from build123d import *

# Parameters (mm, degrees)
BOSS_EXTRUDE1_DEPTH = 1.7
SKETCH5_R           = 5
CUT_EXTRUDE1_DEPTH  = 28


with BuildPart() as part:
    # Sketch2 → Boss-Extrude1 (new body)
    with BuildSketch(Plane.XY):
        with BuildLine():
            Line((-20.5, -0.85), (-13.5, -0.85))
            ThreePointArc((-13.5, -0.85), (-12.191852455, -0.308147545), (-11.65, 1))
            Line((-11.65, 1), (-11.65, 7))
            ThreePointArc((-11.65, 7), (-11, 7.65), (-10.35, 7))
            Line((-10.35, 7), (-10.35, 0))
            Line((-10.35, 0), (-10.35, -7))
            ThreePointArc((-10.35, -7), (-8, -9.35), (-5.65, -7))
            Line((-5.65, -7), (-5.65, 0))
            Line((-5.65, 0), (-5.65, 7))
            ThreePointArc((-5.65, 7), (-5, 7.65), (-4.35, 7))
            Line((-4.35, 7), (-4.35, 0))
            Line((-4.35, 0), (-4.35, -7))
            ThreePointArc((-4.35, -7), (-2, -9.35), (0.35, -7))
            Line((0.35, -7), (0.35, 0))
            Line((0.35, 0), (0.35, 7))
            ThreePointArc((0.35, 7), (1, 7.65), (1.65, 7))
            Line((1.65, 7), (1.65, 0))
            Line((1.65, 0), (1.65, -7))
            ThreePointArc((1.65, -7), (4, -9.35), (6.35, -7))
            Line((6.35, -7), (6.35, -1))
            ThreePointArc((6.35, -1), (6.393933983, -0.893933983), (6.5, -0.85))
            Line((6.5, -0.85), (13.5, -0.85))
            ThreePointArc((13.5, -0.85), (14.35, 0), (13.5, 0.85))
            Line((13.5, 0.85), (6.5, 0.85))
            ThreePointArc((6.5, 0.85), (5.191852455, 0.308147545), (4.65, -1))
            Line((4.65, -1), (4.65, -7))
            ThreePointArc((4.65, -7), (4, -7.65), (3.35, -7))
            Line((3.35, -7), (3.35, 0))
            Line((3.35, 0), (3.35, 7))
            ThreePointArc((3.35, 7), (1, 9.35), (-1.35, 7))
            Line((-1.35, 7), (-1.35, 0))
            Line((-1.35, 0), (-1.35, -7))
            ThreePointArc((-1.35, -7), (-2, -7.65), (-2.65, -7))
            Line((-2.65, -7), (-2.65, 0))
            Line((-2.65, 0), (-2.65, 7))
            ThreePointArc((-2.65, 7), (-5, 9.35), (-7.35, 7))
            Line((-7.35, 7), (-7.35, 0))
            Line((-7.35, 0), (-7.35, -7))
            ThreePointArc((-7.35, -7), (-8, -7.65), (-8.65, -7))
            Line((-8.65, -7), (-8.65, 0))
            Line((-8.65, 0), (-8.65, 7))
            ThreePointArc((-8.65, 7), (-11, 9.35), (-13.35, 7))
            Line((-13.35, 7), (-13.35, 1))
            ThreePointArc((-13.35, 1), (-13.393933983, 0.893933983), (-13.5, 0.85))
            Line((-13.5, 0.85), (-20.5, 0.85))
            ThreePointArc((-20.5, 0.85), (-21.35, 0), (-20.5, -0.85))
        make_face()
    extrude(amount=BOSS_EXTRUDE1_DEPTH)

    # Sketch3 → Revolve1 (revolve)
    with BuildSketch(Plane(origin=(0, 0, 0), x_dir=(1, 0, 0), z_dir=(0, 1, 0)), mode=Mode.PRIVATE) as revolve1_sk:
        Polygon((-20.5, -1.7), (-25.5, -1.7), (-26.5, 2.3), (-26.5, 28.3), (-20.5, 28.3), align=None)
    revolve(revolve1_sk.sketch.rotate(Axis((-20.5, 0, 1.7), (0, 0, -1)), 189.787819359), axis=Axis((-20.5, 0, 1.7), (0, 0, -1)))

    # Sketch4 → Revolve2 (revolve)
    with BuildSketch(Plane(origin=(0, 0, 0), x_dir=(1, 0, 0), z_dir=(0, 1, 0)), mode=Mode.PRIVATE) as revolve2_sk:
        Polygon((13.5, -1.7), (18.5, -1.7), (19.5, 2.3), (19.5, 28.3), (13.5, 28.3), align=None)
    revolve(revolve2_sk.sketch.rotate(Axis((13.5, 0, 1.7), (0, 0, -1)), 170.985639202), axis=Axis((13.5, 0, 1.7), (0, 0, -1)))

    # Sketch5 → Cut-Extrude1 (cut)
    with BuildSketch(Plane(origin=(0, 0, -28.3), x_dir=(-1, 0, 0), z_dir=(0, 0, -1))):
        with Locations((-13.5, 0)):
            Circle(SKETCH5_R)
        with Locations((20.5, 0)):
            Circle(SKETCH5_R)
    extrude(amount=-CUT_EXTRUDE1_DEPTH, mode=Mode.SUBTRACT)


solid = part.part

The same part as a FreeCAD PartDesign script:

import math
import FreeCAD as App
import Part
import Sketcher
Q = App.Units.Quantity

doc = App.newDocument("Part")
body = doc.addObject("PartDesign::Body", "Body")

sketch1 = doc.addObject("Sketcher::SketchObject", "Sketch")
body.addObject(sketch1)
sketch1.AttachmentSupport = (doc.XY_Plane, [""])
sketch1.MapMode = "FlatFace"
sketch1.addGeometry([
    Part.LineSegment(App.Vector(-20.5, -0.85, 0), App.Vector(-13.5, -0.85, 0)),
    Part.ArcOfCircle(Part.Circle(App.Vector(-13.5, 1, 0), App.Vector(0, 0, 1), 1.85), math.radians(-90), math.radians(0)),
    Part.LineSegment(App.Vector(-11.65, 1, 0), App.Vector(-11.65, 7, 0)),
    Part.ArcOfCircle(Part.Circle(App.Vector(-11, 7, 0), App.Vector(0, 0, 1), 0.65), math.radians(0), math.radians(180)),
    Part.LineSegment(App.Vector(-10.35, 7, 0), App.Vector(-10.35, -7, 0)),
    Part.ArcOfCircle(Part.Circle(App.Vector(-8, -7, 0), App.Vector(0, 0, 1), 2.35), math.radians(180), math.radians(360)),
    Part.LineSegment(App.Vector(-5.65, -7, 0), App.Vector(-5.65, 7, 0)),
    Part.ArcOfCircle(Part.Circle(App.Vector(-5, 7, 0), App.Vector(0, 0, 1), 0.65), math.radians(0), math.radians(180)),
    Part.LineSegment(App.Vector(-4.35, 7, 0), App.Vector(-4.35, -7, 0)),
    Part.ArcOfCircle(Part.Circle(App.Vector(-2, -7, 0), App.Vector(0, 0, 1), 2.35), math.radians(180), math.radians(360)),
    Part.LineSegment(App.Vector(0.35, -7, 0), App.Vector(0.35, 7, 0)),
    Part.ArcOfCircle(Part.Circle(App.Vector(1, 7, 0), App.Vector(0, 0, 1), 0.65), math.radians(0), math.radians(180)),
    Part.LineSegment(App.Vector(1.65, 7, 0), App.Vector(1.65, -7, 0)),
    Part.ArcOfCircle(Part.Circle(App.Vector(4, -7, 0), App.Vector(0, 0, 1), 2.35), math.radians(180), math.radians(360)),
    Part.LineSegment(App.Vector(6.35, -7, 0), App.Vector(6.35, -1, 0)),
    Part.ArcOfCircle(Part.Circle(App.Vector(6.5, -1, 0), App.Vector(0, 0, 1), 0.15), math.radians(90), math.radians(180)),
    Part.LineSegment(App.Vector(6.5, -0.85, 0), App.Vector(13.5, -0.85, 0)),
    Part.ArcOfCircle(Part.Circle(App.Vector(13.5, 0, 0), App.Vector(0, 0, 1), 0.85), math.radians(-90), math.radians(90)),
    Part.LineSegment(App.Vector(13.5, 0.85, 0), App.Vector(6.5, 0.85, 0)),
    Part.ArcOfCircle(Part.Circle(App.Vector(6.5, -1, 0), App.Vector(0, 0, 1), 1.85), math.radians(90), math.radians(180)),
    Part.LineSegment(App.Vector(4.65, -1, 0), App.Vector(4.65, -7, 0)),
    Part.ArcOfCircle(Part.Circle(App.Vector(4, -7, 0), App.Vector(0, 0, 1), 0.65), math.radians(180), math.radians(360)),
    Part.LineSegment(App.Vector(3.35, -7, 0), App.Vector(3.35, 7, 0)),
    Part.ArcOfCircle(Part.Circle(App.Vector(1, 7, 0), App.Vector(0, 0, 1), 2.35), math.radians(0), math.radians(180)),
    Part.LineSegment(App.Vector(-1.35, 7, 0), App.Vector(-1.35, -7, 0)),
    Part.ArcOfCircle(Part.Circle(App.Vector(-2, -7, 0), App.Vector(0, 0, 1), 0.65), math.radians(180), math.radians(360)),
    Part.LineSegment(App.Vector(-2.65, -7, 0), App.Vector(-2.65, 7, 0)),
    Part.ArcOfCircle(Part.Circle(App.Vector(-5, 7, 0), App.Vector(0, 0, 1), 2.35), math.radians(0), math.radians(180)),
    Part.LineSegment(App.Vector(-7.35, 7, 0), App.Vector(-7.35, -7, 0)),
    Part.ArcOfCircle(Part.Circle(App.Vector(-8, -7, 0), App.Vector(0, 0, 1), 0.65), math.radians(180), math.radians(360)),
    Part.LineSegment(App.Vector(-8.65, -7, 0), App.Vector(-8.65, 7, 0)),
    Part.ArcOfCircle(Part.Circle(App.Vector(-11, 7, 0), App.Vector(0, 0, 1), 2.35), math.radians(0), math.radians(180)),
    Part.LineSegment(App.Vector(-13.35, 7, 0), App.Vector(-13.35, 1, 0)),
    Part.ArcOfCircle(Part.Circle(App.Vector(-13.5, 1, 0), App.Vector(0, 0, 1), 0.15), math.radians(-90), math.radians(0)),
    Part.LineSegment(App.Vector(-13.5, 0.85, 0), App.Vector(-20.5, 0.85, 0)),
    Part.ArcOfCircle(Part.Circle(App.Vector(-20.5, 0, 0), App.Vector(0, 0, 1), 0.85), math.radians(90), math.radians(270)),
], False)
sketch1.addConstraint([
    Sketcher.Constraint("Tangent", 0, 2, 1, 1),
    Sketcher.Constraint("Tangent", 1, 2, 2, 1),
    Sketcher.Constraint("Tangent", 2, 2, 3, 2),
    Sketcher.Constraint("Tangent", 3, 1, 4, 1),
    Sketcher.Constraint("Tangent", 4, 2, 5, 1),
    Sketcher.Constraint("Tangent", 5, 2, 6, 1),
    Sketcher.Constraint("Tangent", 6, 2, 7, 2),
    Sketcher.Constraint("Tangent", 7, 1, 8, 1),
    Sketcher.Constraint("Tangent", 8, 2, 9, 1),
    Sketcher.Constraint("Tangent", 9, 2, 10, 1),
    Sketcher.Constraint("Tangent", 10, 2, 11, 2),
    Sketcher.Constraint("Tangent", 11, 1, 12, 1),
    Sketcher.Constraint("Tangent", 12, 2, 13, 1),
    Sketcher.Constraint("Tangent", 13, 2, 14, 1),
    Sketcher.Constraint("Tangent", 14, 2, 15, 2),
    Sketcher.Constraint("Tangent", 15, 1, 16, 1),
    Sketcher.Constraint("Tangent", 16, 2, 17, 1),
    Sketcher.Constraint("Tangent", 17, 2, 18, 1),
    Sketcher.Constraint("Tangent", 18, 2, 19, 1),
    Sketcher.Constraint("Tangent", 19, 2, 20, 1),
    Sketcher.Constraint("Tangent", 20, 2, 21, 2),
    Sketcher.Constraint("Tangent", 21, 1, 22, 1),
    Sketcher.Constraint("Tangent", 22, 2, 23, 1),
    Sketcher.Constraint("Tangent", 23, 2, 24, 1),
    Sketcher.Constraint("Tangent", 24, 2, 25, 2),
    Sketcher.Constraint("Tangent", 25, 1, 26, 1),
    Sketcher.Constraint("Tangent", 26, 2, 27, 1),
    Sketcher.Constraint("Tangent", 27, 2, 28, 1),
    Sketcher.Constraint("Tangent", 28, 2, 29, 2),
    Sketcher.Constraint("Tangent", 29, 1, 30, 1),
    Sketcher.Constraint("Tangent", 30, 2, 31, 1),
    Sketcher.Constraint("Tangent", 31, 2, 32, 1),
    Sketcher.Constraint("Tangent", 32, 2, 33, 2),
    Sketcher.Constraint("Tangent", 33, 1, 34, 1),
    Sketcher.Constraint("Tangent", 34, 2, 35, 1),
    Sketcher.Constraint("Tangent", 35, 2, 0, 1),
    Sketcher.Constraint("Horizontal", 0),
    Sketcher.Constraint("Vertical", 2),
    Sketcher.Constraint("Vertical", 4),
    Sketcher.Constraint("Vertical", 6),
    Sketcher.Constraint("Vertical", 8),
    Sketcher.Constraint("Vertical", 10),
    Sketcher.Constraint("Vertical", 12),
    Sketcher.Constraint("Vertical", 14),
    Sketcher.Constraint("Horizontal", 16),
    Sketcher.Constraint("Horizontal", 18),
    Sketcher.Constraint("Vertical", 20),
    Sketcher.Constraint("Vertical", 22),
    Sketcher.Constraint("Vertical", 24),
    Sketcher.Constraint("Vertical", 26),
    Sketcher.Constraint("Vertical", 28),
    Sketcher.Constraint("Vertical", 30),
    Sketcher.Constraint("Vertical", 32),
    Sketcher.Constraint("Horizontal", 34),
    Sketcher.Constraint("Coincident", 19, 3, 15, 3),
    Sketcher.Constraint("Coincident", 21, 3, 13, 3),
    Sketcher.Constraint("Coincident", 23, 3, 11, 3),
    Sketcher.Constraint("Coincident", 25, 3, 9, 3),
    Sketcher.Constraint("Coincident", 27, 3, 7, 3),
    Sketcher.Constraint("Coincident", 29, 3, 5, 3),
    Sketcher.Constraint("Coincident", 31, 3, 3, 3),
    Sketcher.Constraint("Coincident", 33, 3, 1, 3),
    Sketcher.Constraint("Equal", 3, 7),
    Sketcher.Constraint("Equal", 5, 9),
    Sketcher.Constraint("Equal", 7, 11),
    Sketcher.Constraint("Equal", 9, 13),
    Sketcher.Constraint("Equal", 1, 19),
    Sketcher.Constraint("Equal", 11, 21),
    Sketcher.Constraint("Symmetric", 0, 2, 17, 2, -1, 1),
    Sketcher.Constraint("PointOnObject", 17, 3, -1),
    Sketcher.Constraint("Horizontal", 3, 3, 7, 3),
    Sketcher.Constraint("Horizontal", 5, 3, 9, 3),
    Sketcher.Constraint("Horizontal", 7, 3, 11, 3),
    Sketcher.Constraint("Horizontal", 9, 3, 13, 3),
    Sketcher.Constraint("Equal", 0, 16),
    Sketcher.Constraint("Equal", 2, 14),
    Sketcher.Constraint("DistanceX", 0, 1, 0, 2, Q("7 mm")),
    Sketcher.Constraint("DistanceY", 2, 1, 2, 2, Q("6 mm")),
    Sketcher.Constraint("DistanceY", 4, 2, 4, 1, Q("14 mm")),
    Sketcher.Constraint("Radius", 1, Q("1.85 mm")),
    Sketcher.Constraint("Radius", 3, Q("0.65 mm")),
])
pad1 = doc.addObject("PartDesign::Pad", "Pad")
body.addObject(pad1)
pad1.Profile = sketch1
pad1.Length = 1.7

sketch2 = doc.addObject("Sketcher::SketchObject", "Sketch001")
body.addObject(sketch2)
sketch2.AttachmentSupport = (doc.XZ_Plane, [""])
sketch2.MapMode = "FlatFace"
sketch2.addGeometry([
    Part.LineSegment(App.Vector(-25.5, 1.7, 0), App.Vector(-20.5, 1.7, 0)),
    Part.LineSegment(App.Vector(-20.5, 1.7, 0), App.Vector(-20.5, -28.3, 0)),
    Part.LineSegment(App.Vector(-20.5, -28.3, 0), App.Vector(-26.5, -28.3, 0)),
    Part.LineSegment(App.Vector(-26.5, -28.3, 0), App.Vector(-26.5, -2.3, 0)),
    Part.LineSegment(App.Vector(-26.5, -2.3, 0), App.Vector(-25.5, 1.7, 0)),
], False)
sketch2.addGeometry(Part.LineSegment(App.Vector(-20.5, 1.7, 0), App.Vector(-20.5, -28.3, 0)), True)
sketch2.addConstraint([
    Sketcher.Constraint("Coincident", 0, 2, 1, 1),
    Sketcher.Constraint("Coincident", 1, 2, 2, 1),
    Sketcher.Constraint("Coincident", 2, 2, 3, 1),
    Sketcher.Constraint("Coincident", 3, 2, 4, 1),
    Sketcher.Constraint("Coincident", 4, 2, 0, 1),
    Sketcher.Constraint("Horizontal", 0),
    Sketcher.Constraint("Vertical", 1),
    Sketcher.Constraint("Horizontal", 2),
    Sketcher.Constraint("Vertical", 3),
    Sketcher.Constraint("Vertical", 5),
    Sketcher.Constraint("Coincident", 5, 1, 0, 2),
    Sketcher.Constraint("Horizontal", 2, 2, 5, 2),
    Sketcher.Constraint("DistanceX", 0, 1, 0, 2, Q("5 mm")),
    Sketcher.Constraint("DistanceX", 2, 2, 2, 1, Q("6 mm")),
    Sketcher.Constraint("DistanceY", 1, 2, 1, 1, Q("30 mm")),
    Sketcher.Constraint("DistanceY", 3, 1, 3, 2, Q("26 mm")),
    Sketcher.Constraint("DistanceX", 0, 2, -1, 1, Q("20.5 mm")),
    Sketcher.Constraint("DistanceY", -1, 1, 0, 2, Q("1.7 mm")),
])
revolution = doc.addObject("PartDesign::Revolution", "Revolution")
body.addObject(revolution)
revolution.Profile = sketch2
revolution.ReferenceAxis = (sketch2, ["Axis0"])
revolution.Angle = 360

sketch3 = doc.addObject("Sketcher::SketchObject", "Sketch002")
body.addObject(sketch3)
sketch3.AttachmentSupport = (doc.XZ_Plane, [""])
sketch3.MapMode = "FlatFace"
sketch3.addGeometry([
    Part.LineSegment(App.Vector(13.5, 1.7, 0), App.Vector(18.5, 1.7, 0)),
    Part.LineSegment(App.Vector(18.5, 1.7, 0), App.Vector(19.5, -2.3, 0)),
    Part.LineSegment(App.Vector(19.5, -2.3, 0), App.Vector(19.5, -28.3, 0)),
    Part.LineSegment(App.Vector(19.5, -28.3, 0), App.Vector(13.5, -28.3, 0)),
    Part.LineSegment(App.Vector(13.5, -28.3, 0), App.Vector(13.5, 1.7, 0)),
], False)
sketch3.addGeometry(Part.LineSegment(App.Vector(13.5, 1.7, 0), App.Vector(13.5, -28.3, 0)), True)
sketch3.addConstraint([
    Sketcher.Constraint("Coincident", 0, 2, 1, 1),
    Sketcher.Constraint("Coincident", 1, 2, 2, 1),
    Sketcher.Constraint("Coincident", 2, 2, 3, 1),
    Sketcher.Constraint("Coincident", 3, 2, 4, 1),
    Sketcher.Constraint("Coincident", 4, 2, 0, 1),
    Sketcher.Constraint("Horizontal", 0),
    Sketcher.Constraint("Vertical", 2),
    Sketcher.Constraint("Horizontal", 3),
    Sketcher.Constraint("Vertical", 4),
    Sketcher.Constraint("Vertical", 5),
    Sketcher.Constraint("Coincident", 5, 1, 4, 2),
    Sketcher.Constraint("Horizontal", 2, 2, 5, 2),
    Sketcher.Constraint("DistanceX", 0, 1, 0, 2, Q("5 mm")),
    Sketcher.Constraint("DistanceX", 3, 2, 3, 1, Q("6 mm")),
    Sketcher.Constraint("DistanceY", 2, 2, 2, 1, Q("26 mm")),
    Sketcher.Constraint("DistanceY", 4, 1, 4, 2, Q("30 mm")),
    Sketcher.Constraint("DistanceX", -1, 1, 0, 2, Q("18.5 mm")),
    Sketcher.Constraint("DistanceY", -1, 1, 0, 2, Q("1.7 mm")),
])
revolution2 = doc.addObject("PartDesign::Revolution", "Revolution001")
body.addObject(revolution2)
revolution2.Profile = sketch3
revolution2.ReferenceAxis = (sketch3, ["Axis0"])
revolution2.Angle = 360

sketch4 = doc.addObject("Sketcher::SketchObject", "Sketch003")
body.addObject(sketch4)
sketch4.AttachmentSupport = (doc.XY_Plane, [""])
sketch4.MapMode = "FlatFace"
sketch4.AttachmentOffset = App.Placement(App.Vector(0, 0, -28.3), App.Rotation())
sketch4.addGeometry([
    Part.Circle(App.Vector(14, 0, 0), App.Vector(0, 0, 1), 5),
    Part.Circle(App.Vector(-20, 0, 0), App.Vector(0, 0, 1), 5),
], False)
sketch4.addConstraint([
    Sketcher.Constraint("Equal", 0, 1),
    Sketcher.Constraint("PointOnObject", 0, 3, -1),
    Sketcher.Constraint("PointOnObject", 1, 3, -1),
    Sketcher.Constraint("Diameter", 0, Q("10 mm")),
    Sketcher.Constraint("DistanceX", 1, 3, 0, 3, Q("34 mm")),
    Sketcher.Constraint("DistanceX", -1, 1, 0, 3, Q("13.5 mm")),
])
pocket1 = doc.addObject("PartDesign::Pocket", "Pocket")
body.addObject(pocket1)
pocket1.Profile = sketch4
pocket1.Length = 28
pocket1.Reversed = True

doc.recompute()
